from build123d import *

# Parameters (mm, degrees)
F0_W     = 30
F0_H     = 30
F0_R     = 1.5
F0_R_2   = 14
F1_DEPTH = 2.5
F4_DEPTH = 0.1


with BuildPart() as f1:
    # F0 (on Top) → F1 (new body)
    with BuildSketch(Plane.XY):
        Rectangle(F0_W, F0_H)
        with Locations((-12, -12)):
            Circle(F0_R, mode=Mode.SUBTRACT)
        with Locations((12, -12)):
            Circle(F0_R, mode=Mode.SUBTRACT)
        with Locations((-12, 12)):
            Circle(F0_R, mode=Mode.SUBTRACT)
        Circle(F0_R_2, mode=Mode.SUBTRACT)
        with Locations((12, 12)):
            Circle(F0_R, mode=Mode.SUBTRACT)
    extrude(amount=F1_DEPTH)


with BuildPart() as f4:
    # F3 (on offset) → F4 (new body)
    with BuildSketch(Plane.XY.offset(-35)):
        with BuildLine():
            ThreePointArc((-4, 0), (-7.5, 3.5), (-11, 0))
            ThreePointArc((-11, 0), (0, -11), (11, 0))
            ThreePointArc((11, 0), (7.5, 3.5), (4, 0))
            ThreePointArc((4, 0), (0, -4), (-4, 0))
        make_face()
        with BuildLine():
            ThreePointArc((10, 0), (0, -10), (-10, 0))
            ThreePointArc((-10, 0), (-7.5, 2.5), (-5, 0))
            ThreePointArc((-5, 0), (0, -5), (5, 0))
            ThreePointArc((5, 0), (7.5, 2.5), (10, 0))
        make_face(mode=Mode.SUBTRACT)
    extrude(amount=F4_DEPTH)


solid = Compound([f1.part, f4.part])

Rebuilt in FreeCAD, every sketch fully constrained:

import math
import FreeCAD as App
import Part
import Sketcher

doc = App.newDocument("Part")
body = doc.addObject("PartDesign::Body", "Body")

# Sketch on XY plane
sketch1 = doc.addObject("Sketcher::SketchObject", "Sketch")
body.addObject(sketch1)
sketch1.AttachmentSupport = (doc.XY_Plane, [""])
sketch1.MapMode = "FlatFace"
sketch1.addGeometry([
    Part.LineSegment(App.Vector(-15, 15, 0), App.Vector(-15, -15, 0)),  # 0
    Part.LineSegment(App.Vector(-15, -15, 0), App.Vector(15, -15, 0)),  # 1
    Part.LineSegment(App.Vector(15, -15, 0), App.Vector(15, 15, 0)),  # 2
    Part.LineSegment(App.Vector(15, 15, 0), App.Vector(-15, 15, 0)),  # 3
    Part.Circle(App.Vector(-12, -12, 0), App.Vector(0, 0, 1), 1.5),  # 4
    Part.Circle(App.Vector(12, -12, 0), App.Vector(0, 0, 1), 1.5),  # 5
    Part.Circle(App.Vector(-12, 12, 0), App.Vector(0, 0, 1), 1.5),  # 6
    Part.Circle(App.Vector(0, 0, 0), App.Vector(0, 0, 1), 14),  # 7
    Part.Circle(App.Vector(12, 12, 0), App.Vector(0, 0, 1), 1.5),  # 8
], False)
sketch1.addConstraint([
    Sketcher.Constraint("Coincident", 0, 2, 1, 1),
    Sketcher.Constraint("Coincident", 1, 2, 2, 1),
    Sketcher.Constraint("Coincident", 2, 2, 3, 1),
    Sketcher.Constraint("Coincident", 3, 2, 0, 1),
    Sketcher.Constraint("Vertical", 0),
    Sketcher.Constraint("Horizontal", 1),
    Sketcher.Constraint("Vertical", 2),
    Sketcher.Constraint("Horizontal", 3),
    Sketcher.Constraint("Coincident", 7, 3, -1, 1),
    Sketcher.Constraint("Equal", 4, 5),
    Sketcher.Constraint("Equal", 5, 6),
    Sketcher.Constraint("Equal", 6, 8),
    Sketcher.Constraint("Symmetric", 5, 3, 6, 3, -1, 1),
    Sketcher.Constraint("Symmetric", 4, 3, 8, 3, -1, 1),
    Sketcher.Constraint("Symmetric", 0, 2, 2, 2, -1, 1),
    Sketcher.Constraint("Symmetric", 4, 3, 5, 3, -2),
    Sketcher.Constraint("Equal", 3, 0),
    Sketcher.Constraint("Diameter", 4, 3.0),
    Sketcher.Constraint("Diameter", 7, 28.0),
    Sketcher.Constraint("DistanceX", 1, 1, 1, 2, 30.0),
    Sketcher.Constraint("DistanceX", 4, 3, -1, 1, 12.0),
    Sketcher.Constraint("DistanceY", 4, 3, -1, 1, 12.0),
])
pad1 = doc.addObject("PartDesign::Pad", "Pad")
body.addObject(pad1)
pad1.Profile = sketch1
pad1.Length = 2.5
body2 = doc.addObject("PartDesign::Body", "Body001")

# Sketch on XY plane
sketch2 = doc.addObject("Sketcher::SketchObject", "Sketch001")
body2.addObject(sketch2)
sketch2.AttachmentSupport = (doc.getObject("XY_Plane001"), [""])
sketch2.MapMode = "FlatFace"
sketch2.AttachmentOffset = App.Placement(App.Vector(0, 0, -35), App.Rotation())
sketch2.addGeometry([
    Part.ArcOfCircle(Part.Circle(App.Vector(-7.5, 0, 0), App.Vector(0, 0, 1), 3.5), math.radians(0), math.radians(180)),  # 0
    Part.ArcOfCircle(Part.Circle(App.Vector(0, 0, 0), App.Vector(0, 0, 1), 11), math.radians(180), math.radians(360)),  # 1
    Part.ArcOfCircle(Part.Circle(App.Vector(7.5, 0, 0), App.Vector(0, 0, 1), 3.5), math.radians(0), math.radians(180)),  # 2
    Part.ArcOfCircle(Part.Circle(App.Vector(0, 0, 0), App.Vector(0, 0, 1), 4), math.radians(180), math.radians(360)),  # 3
    Part.ArcOfCircle(Part.Circle(App.Vector(7.5, 0, 0), App.Vector(0, 0, 1), 2.5), math.radians(0), math.radians(180)),  # 4
    Part.ArcOfCircle(Part.Circle(App.Vector(0, 0, 0), App.Vector(0, 0, 1), 10), math.radians(180), math.radians(360)),  # 5
    Part.ArcOfCircle(Part.Circle(App.Vector(-7.5, 0, 0), App.Vector(0, 0, 1), 2.5), math.radians(0), math.radians(180)),  # 6
    Part.ArcOfCircle(Part.Circle(App.Vector(0, 0, 0), App.Vector(0, 0, 1), 5), math.radians(180), math.radians(360)),  # 7
], False)
sketch2.addConstraint([
    Sketcher.Constraint("Tangent", 0, 2, 1, 1),
    Sketcher.Constraint("Tangent", 1, 2, 2, 1),
    Sketcher.Constraint("Tangent", 2, 2, 3, 2),
    Sketcher.Constraint("Tangent", 3, 1, 0, 1),
    Sketcher.Constraint("Tangent", 4, 1, 5, 2),
    Sketcher.Constraint("Tangent", 5, 1, 6, 2),
    Sketcher.Constraint("Tangent", 6, 1, 7, 1),
    Sketcher.Constraint("Tangent", 7, 2, 4, 2),
    Sketcher.Constraint("Coincident", 1, 3, -1, 1),
    Sketcher.Constraint("Coincident", 3, 3, -1, 1),
    Sketcher.Constraint("Coincident", 5, 3, -1, 1),
    Sketcher.Constraint("Coincident", 7, 3, -1, 1),
    Sketcher.Constraint("Coincident", 4, 3, 2, 3),
    Sketcher.Constraint("PointOnObject", 0, 3, -1),
    Sketcher.Constraint("PointOnObject", 2, 3, -1),
    Sketcher.Constraint("PointOnObject", 6, 3, -1),
    Sketcher.Constraint("Radius", 1, 11.0),
    Sketcher.Constraint("Radius", 3, 4.0),
    Sketcher.Constraint("Radius", 5, 10.0),
])
pad2 = doc.addObject("PartDesign::Pad", "Pad001")
body2.addObject(pad2)
pad2.Profile = sketch2
pad2.Length = 0.1

doc.recompute()
